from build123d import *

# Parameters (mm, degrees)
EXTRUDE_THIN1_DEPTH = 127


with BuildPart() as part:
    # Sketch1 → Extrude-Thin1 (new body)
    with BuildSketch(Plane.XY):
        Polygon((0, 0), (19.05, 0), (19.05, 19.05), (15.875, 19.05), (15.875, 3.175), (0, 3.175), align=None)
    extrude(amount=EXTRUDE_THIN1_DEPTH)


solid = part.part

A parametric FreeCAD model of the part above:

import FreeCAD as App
import Part
import Sketcher

V = App.Vector
Q = App.Units.Quantity


def add_polygon(sketch, points):
    """Adds a closed chain of lines whose ends are joined by coincident constraints."""
    first, n = sketch.GeometryCount, len(points)
    for a, b in zip(points, points[1:] + points[:1]):
        sketch.addGeometry(Part.LineSegment(App.Vector(*a, 0), App.Vector(*b, 0)), False)
    for i in range(n):
        sketch.addConstraint(Sketcher.Constraint("Coincident", first + i, 2, first + (i + 1) % n, 1))

doc = App.newDocument("Part")
body = doc.addObject("PartDesign::Body", "Body")

sketch1 = doc.addObject("Sketcher::SketchObject", "Sketch")
body.addObject(sketch1)
sketch1.AttachmentSupport = (doc.XY_Plane, [""])
sketch1.MapMode = "FlatFace"
add_polygon(sketch1, [(0, 0), (19.05, 0), (19.05, 19.05), (15.875, 19.05), (15.875, 3.175), (0, 3.175)])
sketch1.addConstraint([
    Sketcher.Constraint("Horizontal", 0),
    Sketcher.Constraint("Vertical", 1),
    Sketcher.Constraint("Horizontal", 2),
    Sketcher.Constraint("Vertical", 3),
    Sketcher.Constraint("Horizontal", 4),
    Sketcher.Constraint("Vertical", 5),
    Sketcher.Constraint("Coincident", 5, 2, -1, 1),
    Sketcher.Constraint("Equal", 0, 1),
    Sketcher.Constraint("Equal", 4, 3),
    Sketcher.Constraint("DistanceX", 0, 1, 0, 2, Q("0.75 in")),
    Sketcher.Constraint("DistanceX", 2, 2, 2, 1, Q("0.125 in")),
])
pad1 = doc.addObject("PartDesign::Pad", "Pad")
body.addObject(pad1)
pad1.Profile = sketch1
pad1.Length = Q("5 in")

doc.recompute()
